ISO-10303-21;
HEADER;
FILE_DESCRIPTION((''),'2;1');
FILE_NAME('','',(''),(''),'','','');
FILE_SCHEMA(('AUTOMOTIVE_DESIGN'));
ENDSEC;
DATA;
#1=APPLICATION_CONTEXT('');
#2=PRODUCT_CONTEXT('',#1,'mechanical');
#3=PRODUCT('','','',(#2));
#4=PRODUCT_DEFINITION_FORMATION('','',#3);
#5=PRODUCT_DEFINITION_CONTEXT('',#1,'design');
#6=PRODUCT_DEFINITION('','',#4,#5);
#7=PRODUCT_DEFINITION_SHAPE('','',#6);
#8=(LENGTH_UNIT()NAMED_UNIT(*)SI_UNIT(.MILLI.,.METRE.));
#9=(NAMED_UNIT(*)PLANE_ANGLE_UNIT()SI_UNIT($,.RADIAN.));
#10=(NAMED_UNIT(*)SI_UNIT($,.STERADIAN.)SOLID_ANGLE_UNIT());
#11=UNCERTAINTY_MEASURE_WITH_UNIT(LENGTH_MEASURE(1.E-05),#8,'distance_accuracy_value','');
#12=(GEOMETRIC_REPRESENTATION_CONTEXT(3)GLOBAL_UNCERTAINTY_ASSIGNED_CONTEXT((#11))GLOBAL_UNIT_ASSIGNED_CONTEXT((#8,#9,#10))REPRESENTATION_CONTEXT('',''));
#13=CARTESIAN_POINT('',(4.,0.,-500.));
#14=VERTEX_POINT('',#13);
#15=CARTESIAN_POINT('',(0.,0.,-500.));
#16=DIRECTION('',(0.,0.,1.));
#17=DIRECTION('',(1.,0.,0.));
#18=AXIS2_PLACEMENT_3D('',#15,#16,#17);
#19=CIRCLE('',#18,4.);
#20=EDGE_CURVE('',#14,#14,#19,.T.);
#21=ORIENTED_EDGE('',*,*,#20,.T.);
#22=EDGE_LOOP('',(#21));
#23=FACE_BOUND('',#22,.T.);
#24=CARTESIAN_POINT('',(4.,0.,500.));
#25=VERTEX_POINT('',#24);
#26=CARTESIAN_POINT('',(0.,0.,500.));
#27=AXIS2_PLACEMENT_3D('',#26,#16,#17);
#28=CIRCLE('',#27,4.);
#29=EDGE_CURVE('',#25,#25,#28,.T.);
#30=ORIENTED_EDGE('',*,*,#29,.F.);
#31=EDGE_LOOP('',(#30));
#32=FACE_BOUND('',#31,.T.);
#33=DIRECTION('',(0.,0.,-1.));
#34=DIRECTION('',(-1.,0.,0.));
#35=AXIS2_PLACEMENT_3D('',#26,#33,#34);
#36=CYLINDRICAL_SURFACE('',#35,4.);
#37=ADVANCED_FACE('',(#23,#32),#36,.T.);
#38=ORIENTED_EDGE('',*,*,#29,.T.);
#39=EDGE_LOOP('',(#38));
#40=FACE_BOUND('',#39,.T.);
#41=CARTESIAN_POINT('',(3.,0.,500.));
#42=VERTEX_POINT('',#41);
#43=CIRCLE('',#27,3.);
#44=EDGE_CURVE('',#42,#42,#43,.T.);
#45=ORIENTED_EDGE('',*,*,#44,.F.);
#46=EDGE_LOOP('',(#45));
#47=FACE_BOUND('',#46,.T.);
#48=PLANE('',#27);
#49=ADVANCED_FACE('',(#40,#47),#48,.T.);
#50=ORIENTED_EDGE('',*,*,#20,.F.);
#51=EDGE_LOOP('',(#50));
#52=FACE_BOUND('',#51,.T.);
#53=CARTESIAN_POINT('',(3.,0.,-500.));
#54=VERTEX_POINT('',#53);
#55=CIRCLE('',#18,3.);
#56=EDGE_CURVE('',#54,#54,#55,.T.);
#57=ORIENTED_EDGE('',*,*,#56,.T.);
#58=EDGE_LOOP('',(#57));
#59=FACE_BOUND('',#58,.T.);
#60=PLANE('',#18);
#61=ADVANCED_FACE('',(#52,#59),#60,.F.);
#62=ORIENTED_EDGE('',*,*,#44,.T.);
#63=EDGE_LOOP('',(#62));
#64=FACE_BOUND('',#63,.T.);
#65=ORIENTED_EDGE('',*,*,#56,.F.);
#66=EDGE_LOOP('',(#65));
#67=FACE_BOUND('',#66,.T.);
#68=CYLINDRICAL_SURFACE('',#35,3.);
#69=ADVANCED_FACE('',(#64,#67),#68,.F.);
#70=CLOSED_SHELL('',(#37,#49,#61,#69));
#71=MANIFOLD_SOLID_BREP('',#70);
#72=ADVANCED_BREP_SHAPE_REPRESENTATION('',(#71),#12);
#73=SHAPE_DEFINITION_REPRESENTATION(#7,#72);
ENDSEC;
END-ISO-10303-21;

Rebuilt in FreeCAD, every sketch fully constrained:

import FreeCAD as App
import Part
import Sketcher
Q = App.Units.Quantity

doc = App.newDocument("Part")
body = doc.addObject("PartDesign::Body", "Body")

sketch1 = body.newObject("Sketcher::SketchObject", "Sketch")
sketch1.AttachmentSupport = (doc.getObject("XY_Plane"), [""])
sketch1.MapMode = "FlatFace"
sketch1.addGeometry([
    Part.Circle(App.Vector(0, 0, 0), App.Vector(0, 0, 1), 4),
    Part.Circle(App.Vector(0, 0, 0), App.Vector(0, 0, 1), 3),
], False)
sketch1.addConstraint([
    Sketcher.Constraint("Coincident", 0, 3, -1, 1),
    Sketcher.Constraint("Coincident", 1, 3, -1, 1),
    Sketcher.Constraint("Diameter", 0, Q("8 mm")),
    Sketcher.Constraint("Diameter", 1, Q("6 mm")),
])
pad1 = body.newObject("PartDesign::Pad", "Pad")
pad1.Profile = sketch1
pad1.Length = 1000
pad1.Midplane = True

doc.recompute()
